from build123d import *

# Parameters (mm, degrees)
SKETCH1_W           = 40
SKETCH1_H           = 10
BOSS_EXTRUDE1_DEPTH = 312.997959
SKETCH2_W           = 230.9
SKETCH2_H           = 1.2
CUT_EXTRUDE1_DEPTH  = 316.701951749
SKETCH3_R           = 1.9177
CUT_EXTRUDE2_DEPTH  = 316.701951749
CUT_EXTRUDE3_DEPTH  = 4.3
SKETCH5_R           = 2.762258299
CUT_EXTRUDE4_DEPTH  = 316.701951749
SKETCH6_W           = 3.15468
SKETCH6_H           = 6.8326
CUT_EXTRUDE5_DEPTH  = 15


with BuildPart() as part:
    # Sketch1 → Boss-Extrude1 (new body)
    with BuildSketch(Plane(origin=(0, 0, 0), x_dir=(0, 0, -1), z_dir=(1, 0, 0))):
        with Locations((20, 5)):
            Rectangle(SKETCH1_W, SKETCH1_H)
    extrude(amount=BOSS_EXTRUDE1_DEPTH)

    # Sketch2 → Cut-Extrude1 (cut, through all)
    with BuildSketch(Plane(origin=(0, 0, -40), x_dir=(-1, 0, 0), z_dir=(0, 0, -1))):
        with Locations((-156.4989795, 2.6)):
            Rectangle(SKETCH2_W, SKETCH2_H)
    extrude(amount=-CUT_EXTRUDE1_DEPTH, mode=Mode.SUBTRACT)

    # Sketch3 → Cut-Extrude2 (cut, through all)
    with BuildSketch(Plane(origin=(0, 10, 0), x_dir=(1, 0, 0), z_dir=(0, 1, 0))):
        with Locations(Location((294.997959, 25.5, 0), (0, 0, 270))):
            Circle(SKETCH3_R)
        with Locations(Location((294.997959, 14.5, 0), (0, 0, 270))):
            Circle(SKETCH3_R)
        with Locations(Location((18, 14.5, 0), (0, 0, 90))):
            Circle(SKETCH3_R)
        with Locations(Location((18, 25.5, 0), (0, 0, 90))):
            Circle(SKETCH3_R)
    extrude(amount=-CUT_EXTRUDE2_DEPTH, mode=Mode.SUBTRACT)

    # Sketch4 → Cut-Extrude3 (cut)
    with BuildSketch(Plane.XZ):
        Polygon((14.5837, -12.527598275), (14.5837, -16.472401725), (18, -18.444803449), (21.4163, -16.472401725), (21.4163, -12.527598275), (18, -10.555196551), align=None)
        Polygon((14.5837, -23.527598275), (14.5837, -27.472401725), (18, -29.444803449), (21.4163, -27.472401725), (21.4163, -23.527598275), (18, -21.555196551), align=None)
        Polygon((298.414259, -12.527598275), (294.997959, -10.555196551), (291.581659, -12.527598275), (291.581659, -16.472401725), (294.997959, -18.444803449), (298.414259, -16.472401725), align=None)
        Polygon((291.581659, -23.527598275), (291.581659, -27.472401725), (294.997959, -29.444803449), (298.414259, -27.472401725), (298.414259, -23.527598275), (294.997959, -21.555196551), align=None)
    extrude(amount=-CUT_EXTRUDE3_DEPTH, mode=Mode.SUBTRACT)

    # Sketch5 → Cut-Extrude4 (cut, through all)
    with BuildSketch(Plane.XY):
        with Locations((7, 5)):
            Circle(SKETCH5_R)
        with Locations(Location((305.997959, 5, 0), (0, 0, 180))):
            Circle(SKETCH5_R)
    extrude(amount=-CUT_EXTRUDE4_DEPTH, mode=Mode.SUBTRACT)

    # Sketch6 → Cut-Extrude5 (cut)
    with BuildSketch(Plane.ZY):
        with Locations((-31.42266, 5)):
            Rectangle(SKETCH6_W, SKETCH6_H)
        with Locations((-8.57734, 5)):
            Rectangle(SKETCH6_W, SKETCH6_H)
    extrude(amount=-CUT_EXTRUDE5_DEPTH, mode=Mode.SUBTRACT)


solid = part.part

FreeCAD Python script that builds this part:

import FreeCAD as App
import Part
import Sketcher
Q = App.Units.Quantity

doc = App.newDocument("Part")
params = doc.addObject("Spreadsheet::Sheet", "Params")
for row, (alias, value) in enumerate([
    ("sketch1_width", "10 mm"),
    ("sketch1_height", "40 mm"),
    ("pad1_length", "312.997959 mm"),
    ("sketch2_width", "230.9 mm"),
    ("sketch2_height", "1.2 mm"),
    ("pocket3_length", "4.3 mm"),
    ("pocket5_length", "15 mm"),
], start=1):
    params.set(f"A{row}", alias)
    params.set(f"B{row}", "=" + value)
    params.setAlias(f"B{row}", alias)

body = doc.addObject("PartDesign::Body", "Body")

# Sketch on YZ plane
sketch1 = body.newObject("Sketcher::SketchObject", "Sketch")
sketch1.AttachmentSupport = (doc.getObject("YZ_Plane"), [""])
sketch1.MapMode = "FlatFace"
sketch1.addGeometry([
    Part.LineSegment(App.Vector(10, 0, 0), App.Vector(0, 0, 0)),
    Part.LineSegment(App.Vector(0, 0, 0), App.Vector(0, -40, 0)),
    Part.LineSegment(App.Vector(0, -40, 0), App.Vector(10, -40, 0)),
    Part.LineSegment(App.Vector(10, -40, 0), App.Vector(10, 0, 0)),
], False)
sketch1.addConstraint([
    Sketcher.Constraint("Coincident", 0, 2, 1, 1),
    Sketcher.Constraint("Coincident", 1, 2, 2, 1),
    Sketcher.Constraint("Coincident", 2, 2, 3, 1),
    Sketcher.Constraint("Coincident", 3, 2, 0, 1),
    Sketcher.Constraint("Horizontal", 0),
    Sketcher.Constraint("Vertical", 1),
    Sketcher.Constraint("Horizontal", 2),
    Sketcher.Constraint("Vertical", 3),
    Sketcher.Constraint("Coincident", 0, 2, -1, 1),
    Sketcher.Constraint("DistanceX", 0, 2, 0, 1, 10.0),
    Sketcher.Constraint("DistanceY", 1, 2, 1, 1, 40.0),
])
sketch1.setExpression("Constraints[9]", "Params.sketch1_width")
sketch1.setExpression("Constraints[10]", "Params.sketch1_height")
pad1 = body.newObject("PartDesign::Pad", "Pad")
pad1.Profile = sketch1
pad1.setExpression("Length", "Params.pad1_length")

# Sketch on XY plane
sketch2 = body.newObject("Sketcher::SketchObject", "Sketch001")
sketch2.AttachmentSupport = (doc.getObject("XY_Plane"), [""])
sketch2.MapMode = "FlatFace"
sketch2.AttachmentOffset = App.Placement(App.Vector(0, 0, -40), App.Rotation())
sketch2.addGeometry([
    Part.LineSegment(App.Vector(271.9, 3.2, 0), App.Vector(271.9, 2, 0)),
    Part.LineSegment(App.Vector(271.9, 2, 0), App.Vector(41, 2, 0)),
    Part.LineSegment(App.Vector(41, 2, 0), App.Vector(41, 3.2, 0)),
    Part.LineSegment(App.Vector(41, 3.2, 0), App.Vector(271.9, 3.2, 0)),
], False)
sketch2.addConstraint([
    Sketcher.Constraint("Coincident", 0, 2, 1, 1),
    Sketcher.Constraint("Coincident", 1, 2, 2, 1),
    Sketcher.Constraint("Coincident", 2, 2, 3, 1),
    Sketcher.Constraint("Coincident", 3, 2, 0, 1),
    Sketcher.Constraint("Vertical", 0),
    Sketcher.Constraint("Horizontal", 1),
    Sketcher.Constraint("Vertical", 2),
    Sketcher.Constraint("Horizontal", 3),
    Sketcher.Constraint("DistanceX", 1, 2, 1, 1, 230.9),
    Sketcher.Constraint("DistanceY", 0, 2, 0, 1, 1.2),
    Sketcher.Constraint("DistanceY", -1, 1, 0, 2, 2.0),
    Sketcher.Constraint("DistanceX", -1, 1, 0, 2, 271.94898),
])
sketch2.setExpression("Constraints[8]", "Params.sketch2_width")
sketch2.setExpression("Constraints[9]", "Params.sketch2_height")
pocket1 = body.newObject("PartDesign::Pocket", "Pocket")
pocket1.Profile = sketch2
pocket1.Type = "ThroughAll"
pocket1.Reversed = True

# Sketch on XZ plane
sketch3 = body.newObject("Sketcher::SketchObject", "Sketch002")
sketch3.AttachmentSupport = (doc.getObject("XZ_Plane"), [""])
sketch3.MapMode = "FlatFace"
sketch3.AttachmentOffset = App.Placement(App.Vector(0, 0, -10), App.Rotation())
sketch3.addGeometry([
    Part.Circle(App.Vector(295, -25.5, 0), App.Vector(0, 0, 1), 1.9),
    Part.Circle(App.Vector(295, -14.5, 0), App.Vector(0, 0, 1), 1.9),
    Part.Circle(App.Vector(18, -14.5, 0), App.Vector(0, 0, 1), 1.9),
    Part.Circle(App.Vector(18, -25.5, 0), App.Vector(0, 0, 1), 1.9),
], False)
sketch3.addConstraint([
    Sketcher.Constraint("Equal", 0, 1),
    Sketcher.Constraint("Equal", 1, 2),
    Sketcher.Constraint("Equal", 2, 3),
    Sketcher.Constraint("Horizontal", 1, 3, 2, 3),
    Sketcher.Constraint("Horizontal", 0, 3, 3, 3),
    Sketcher.Constraint("Vertical", 0, 3, 1, 3),
    Sketcher.Constraint("Vertical", 2, 3, 3, 3),
    Sketcher.Constraint("DistanceX", -1, 1, 2, 3, 18.0),
    Sketcher.Constraint("DistanceY", 0, 3, 1, 3, 11.0),
    Sketcher.Constraint("Diameter", 0, 3.8354),
    Sketcher.Constraint("DistanceY", 0, 3, -1, 1, 25.5),
    Sketcher.Constraint("DistanceX", -1, 1, 0, 3, 294.997959),
])
pocket2 = body.newObject("PartDesign::Pocket", "Pocket001")
pocket2.Profile = sketch3
pocket2.Type = "ThroughAll"
pocket2.Reversed = True

# Sketch on XZ plane
sketch4 = body.newObject("Sketcher::SketchObject", "Sketch003")
sketch4.AttachmentSupport = (doc.getObject("XZ_Plane"), [""])
sketch4.MapMode = "FlatFace"
sketch4.addGeometry([
    Part.LineSegment(App.Vector(14.6, -12.5, 0), App.Vector(14.6, -16.5, 0)),  # 0
    Part.LineSegment(App.Vector(14.6, -16.5, 0), App.Vector(18, -18.4, 0)),  # 1
    Part.LineSegment(App.Vector(18, -18.4, 0), App.Vector(21.4, -16.5, 0)),  # 2
    Part.LineSegment(App.Vector(21.4, -16.5, 0), App.Vector(21.4, -12.5, 0)),  # 3
    Part.LineSegment(App.Vector(21.4, -12.5, 0), App.Vector(18, -10.6, 0)),  # 4
    Part.LineSegment(App.Vector(18, -10.6, 0), App.Vector(14.6, -12.5, 0)),  # 5
    Part.LineSegment(App.Vector(14.6, -23.5, 0), App.Vector(14.6, -27.5, 0)),  # 6
    Part.LineSegment(App.Vector(14.6, -27.5, 0), App.Vector(18, -29.4, 0)),  # 7
    Part.LineSegment(App.Vector(18, -29.4, 0), App.Vector(21.4, -27.5, 0)),  # 8
    Part.LineSegment(App.Vector(21.4, -27.5, 0), App.Vector(21.4, -23.5, 0)),  # 9
    Part.LineSegment(App.Vector(21.4, -23.5, 0), App.Vector(18, -21.6, 0)),  # 10
    Part.LineSegment(App.Vector(18, -21.6, 0), App.Vector(14.6, -23.5, 0)),  # 11
    Part.LineSegment(App.Vector(298.4, -12.5, 0), App.Vector(295, -10.6, 0)),  # 12
    Part.LineSegment(App.Vector(295, -10.6, 0), App.Vector(291.6, -12.5, 0)),  # 13
    Part.LineSegment(App.Vector(291.6, -12.5, 0), App.Vector(291.6, -16.5, 0)),  # 14
    Part.LineSegment(App.Vector(291.6, -16.5, 0), App.Vector(295, -18.4, 0)),  # 15
    Part.LineSegment(App.Vector(295, -18.4, 0), App.Vector(298.4, -16.5, 0)),  # 16
    Part.LineSegment(App.Vector(298.4, -16.5, 0), App.Vector(298.4, -12.5, 0)),  # 17
    Part.LineSegment(App.Vector(291.6, -23.5, 0), App.Vector(291.6, -27.5, 0)),  # 18
    Part.LineSegment(App.Vector(291.6, -27.5, 0), App.Vector(295, -29.4, 0)),  # 19
    Part.LineSegment(App.Vector(295, -29.4, 0), App.Vector(298.4, -27.5, 0)),  # 20
    Part.LineSegment(App.Vector(298.4, -27.5, 0), App.Vector(298.4, -23.5, 0)),  # 21
    Part.LineSegment(App.Vector(298.4, -23.5, 0), App.Vector(295, -21.6, 0)),  # 22
    Part.LineSegment(App.Vector(295, -21.6, 0), App.Vector(291.6, -23.5, 0)),  # 23
], False)
sketch4.addConstraint([
    Sketcher.Constraint("Coincident", 0, 2, 1, 1),
    Sketcher.Constraint("Coincident", 1, 2, 2, 1),
    Sketcher.Constraint("Coincident", 2, 2, 3, 1),
    Sketcher.Constraint("Coincident", 3, 2, 4, 1),
    Sketcher.Constraint("Coincident", 4, 2, 5, 1),
    Sketcher.Constraint("Coincident", 5, 2, 0, 1),
    Sketcher.Constraint("Coincident", 6, 2, 7, 1),
    Sketcher.Constraint("Coincident", 7, 2, 8, 1),
    Sketcher.Constraint("Coincident", 8, 2, 9, 1),
    Sketcher.Constraint("Coincident", 9, 2, 10, 1),
    Sketcher.Constraint("Coincident", 10, 2, 11, 1),
    Sketcher.Constraint("Coincident", 11, 2, 6, 1),
    Sketcher.Constraint("Coincident", 12, 2, 13, 1),
    Sketcher.Constraint("Coincident", 13, 2, 14, 1),
    Sketcher.Constraint("Coincident", 14, 2, 15, 1),
    Sketcher.Constraint("Coincident", 15, 2, 16, 1),
    Sketcher.Constraint("Coincident", 16, 2, 17, 1),
    Sketcher.Constraint("Coincident", 17, 2, 12, 1),
    Sketcher.Constraint("Coincident", 18, 2, 19, 1),
    Sketcher.Constraint("Coincident", 19, 2, 20, 1),
    Sketcher.Constraint("Coincident", 20, 2, 21, 1),
    Sketcher.Constraint("Coincident", 21, 2, 22, 1),
    Sketcher.Constraint("Coincident", 22, 2, 23, 1),
    Sketcher.Constraint("Coincident", 23, 2, 18, 1),
    Sketcher.Constraint("Vertical", 0),
    Sketcher.Constraint("Vertical", 3),
    Sketcher.Constraint("Vertical", 6),
    Sketcher.Constraint("Vertical", 9),
    Sketcher.Constraint("Vertical", 14),
    Sketcher.Constraint("Vertical", 17),
    Sketcher.Constraint("Vertical", 18),
    Sketcher.Constraint("Vertical", 21),
    Sketcher.Constraint("Parallel", 1, 4),
    Sketcher.Constraint("Parallel", 2, 5),
    Sketcher.Constraint("Parallel", 4, 7),
    Sketcher.Constraint("Parallel", 5, 8),
    Sketcher.Constraint("Parallel", 7, 10),
    Sketcher.Constraint("Parallel", 8, 11),
    Sketcher.Constraint("Parallel", 10, 12),
    Sketcher.Constraint("Parallel", 11, 13),
    Sketcher.Constraint("Parallel", 12, 15),
    Sketcher.Constraint("Parallel", 13, 16),
    Sketcher.Constraint("Parallel", 15, 19),
    Sketcher.Constraint("Parallel", 16, 20),
    Sketcher.Constraint("Parallel", 19, 22),
    Sketcher.Constraint("Parallel", 20, 23),
    Sketcher.Constraint("Horizontal", 0, 2, 2, 2),
    Sketcher.Constraint("Horizontal", 3, 2, 5, 2),
    Sketcher.Constraint("Horizontal", 6, 2, 8, 2),
    Sketcher.Constraint("Horizontal", 9, 2, 11, 2),
    Sketcher.Constraint("Horizontal", 4, 2, 12, 2),
    Sketcher.Constraint("Horizontal", 5, 2, 13, 2),
    Sketcher.Constraint("Horizontal", 2, 2, 14, 2),
    Sketcher.Constraint("Horizontal", 1, 2, 15, 2),
    Sketcher.Constraint("Horizontal", 14, 2, 16, 2),
    Sketcher.Constraint("Horizontal", 8, 2, 18, 2),
    Sketcher.Constraint("Horizontal", 7, 2, 19, 2),
    Sketcher.Constraint("Horizontal", 18, 2, 20, 2),
    Sketcher.Constraint("Horizontal", 11, 2, 21, 2),
    Sketcher.Constraint("Horizontal", 10, 2, 22, 2),
    Sketcher.Constraint("Vertical", 1, 2, 4, 2),
    Sketcher.Constraint("Vertical", 5, 2, 6, 2),
    Sketcher.Constraint("Vertical", 4, 2, 7, 2),
    Sketcher.Constraint("Vertical", 14, 2, 18, 2),
    Sketcher.Constraint("Equal", 3, 6),
    Sketcher.Constraint("Angle", 1, Q("-30 deg")),
    Sketcher.Constraint("DistanceX", -1, 1, 1, 2, 18.0),
    Sketcher.Constraint("DistanceY", 6, 2, 0, 2, 11.0),
    Sketcher.Constraint("DistanceX", -1, 1, 0, 2, 14.5837),
    Sketcher.Constraint("DistanceY", 0, 2, -1, 1, 16.472402),
    Sketcher.Constraint("DistanceY", 3, 2, -1, 1, 12.527598),
    Sketcher.Constraint("DistanceX", -1, 1, 12, 2, 294.997959),
])
pocket3 = body.newObject("PartDesign::Pocket", "Pocket002")
pocket3.Profile = sketch4
pocket3.setExpression("Length", "Params.pocket3_length")

# Sketch on XY plane
sketch5 = body.newObject("Sketcher::SketchObject", "Sketch004")
sketch5.AttachmentSupport = (doc.getObject("XY_Plane"), [""])
sketch5.MapMode = "FlatFace"
sketch5.addGeometry([
    Part.Circle(App.Vector(7, 5, 0), App.Vector(0, 0, 1), 2.8),
    Part.Circle(App.Vector(306, 5, 0), App.Vector(0, 0, 1), 2.8),
], False)
sketch5.addConstraint([
    Sketcher.Constraint("Equal", 0, 1),
    Sketcher.Constraint("Horizontal", 0, 3, 1, 3),
    Sketcher.Constraint("DistanceX", -1, 1, 0, 3, 7.0),
    Sketcher.Constraint("DistanceY", -1, 1, 0, 3, 5.0),
    Sketcher.Constraint("Diameter", 0, 5.524517),
    Sketcher.Constraint("DistanceX", -1, 1, 1, 3, 305.997959),
])
pocket4 = body.newObject("PartDesign::Pocket", "Pocket003")
pocket4.Profile = sketch5
pocket4.Type = "ThroughAll"

# Sketch on YZ plane
sketch6 = body.newObject("Sketcher::SketchObject", "Sketch005")
sketch6.AttachmentSupport = (doc.getObject("YZ_Plane"), [""])
sketch6.MapMode = "FlatFace"
sketch6.addGeometry([
    Part.LineSegment(App.Vector(8.4, -33, 0), App.Vector(1.6, -33, 0)),  # 0
    Part.LineSegment(App.Vector(1.6, -33, 0), App.Vector(1.6, -29.8, 0)),  # 1
    Part.LineSegment(App.Vector(1.6, -29.8, 0), App.Vector(8.4, -29.8, 0)),  # 2
    Part.LineSegment(App.Vector(8.4, -29.8, 0), App.Vector(8.4, -33, 0)),  # 3
    Part.LineSegment(App.Vector(8.4, -10.2, 0), App.Vector(1.6, -10.2, 0)),  # 4
    Part.LineSegment(App.Vector(1.6, -10.2, 0), App.Vector(1.6, -7, 0)),  # 5
    Part.LineSegment(App.Vector(1.6, -7, 0), App.Vector(8.4, -7, 0)),  # 6
    Part.LineSegment(App.Vector(8.4, -7, 0), App.Vector(8.4, -10.2, 0)),  # 7
], False)
sketch6.addConstraint([
    Sketcher.Constraint("Coincident", 0, 2, 1, 1),
    Sketcher.Constraint("Coincident", 1, 2, 2, 1),
    Sketcher.Constraint("Coincident", 2, 2, 3, 1),
    Sketcher.Constraint("Coincident", 3, 2, 0, 1),
    Sketcher.Constraint("Coincident", 4, 2, 5, 1),
    Sketcher.Constraint("Coincident", 5, 2, 6, 1),
    Sketcher.Constraint("Coincident", 6, 2, 7, 1),
    Sketcher.Constraint("Coincident", 7, 2, 4, 1),
    Sketcher.Constraint("Horizontal", 0),
    Sketcher.Constraint("Vertical", 1),
    Sketcher.Constraint("Horizontal", 2),
    Sketcher.Constraint("Vertical", 3),
    Sketcher.Constraint("Horizontal", 4),
    Sketcher.Constraint("Vertical", 5),
    Sketcher.Constraint("Horizontal", 6),
    Sketcher.Constraint("Vertical", 7),
    Sketcher.Constraint("Vertical", 1, 2, 4, 2),
    Sketcher.Constraint("Vertical", 3, 2, 6, 2),
    Sketcher.Constraint("Equal", 3, 5),
    Sketcher.Constraint("DistanceY", 0, 2, -1, 1, 33.0),
    Sketcher.Constraint("DistanceY", 5, 2, -1, 1, 7.0),
    Sketcher.Constraint("DistanceX", 0, 2, 0, 1, 6.8326),
    Sketcher.Constraint("DistanceY", 1, 1, 1, 2, 3.15468),
    Sketcher.Constraint("DistanceX", -1, 1, 0, 2, 1.5837),
])
pocket5 = body.newObject("PartDesign::Pocket", "Pocket004")
pocket5.Profile = sketch6
pocket5.setExpression("Length", "Params.pocket5_length")
pocket5.Reversed = True

doc.recompute()
